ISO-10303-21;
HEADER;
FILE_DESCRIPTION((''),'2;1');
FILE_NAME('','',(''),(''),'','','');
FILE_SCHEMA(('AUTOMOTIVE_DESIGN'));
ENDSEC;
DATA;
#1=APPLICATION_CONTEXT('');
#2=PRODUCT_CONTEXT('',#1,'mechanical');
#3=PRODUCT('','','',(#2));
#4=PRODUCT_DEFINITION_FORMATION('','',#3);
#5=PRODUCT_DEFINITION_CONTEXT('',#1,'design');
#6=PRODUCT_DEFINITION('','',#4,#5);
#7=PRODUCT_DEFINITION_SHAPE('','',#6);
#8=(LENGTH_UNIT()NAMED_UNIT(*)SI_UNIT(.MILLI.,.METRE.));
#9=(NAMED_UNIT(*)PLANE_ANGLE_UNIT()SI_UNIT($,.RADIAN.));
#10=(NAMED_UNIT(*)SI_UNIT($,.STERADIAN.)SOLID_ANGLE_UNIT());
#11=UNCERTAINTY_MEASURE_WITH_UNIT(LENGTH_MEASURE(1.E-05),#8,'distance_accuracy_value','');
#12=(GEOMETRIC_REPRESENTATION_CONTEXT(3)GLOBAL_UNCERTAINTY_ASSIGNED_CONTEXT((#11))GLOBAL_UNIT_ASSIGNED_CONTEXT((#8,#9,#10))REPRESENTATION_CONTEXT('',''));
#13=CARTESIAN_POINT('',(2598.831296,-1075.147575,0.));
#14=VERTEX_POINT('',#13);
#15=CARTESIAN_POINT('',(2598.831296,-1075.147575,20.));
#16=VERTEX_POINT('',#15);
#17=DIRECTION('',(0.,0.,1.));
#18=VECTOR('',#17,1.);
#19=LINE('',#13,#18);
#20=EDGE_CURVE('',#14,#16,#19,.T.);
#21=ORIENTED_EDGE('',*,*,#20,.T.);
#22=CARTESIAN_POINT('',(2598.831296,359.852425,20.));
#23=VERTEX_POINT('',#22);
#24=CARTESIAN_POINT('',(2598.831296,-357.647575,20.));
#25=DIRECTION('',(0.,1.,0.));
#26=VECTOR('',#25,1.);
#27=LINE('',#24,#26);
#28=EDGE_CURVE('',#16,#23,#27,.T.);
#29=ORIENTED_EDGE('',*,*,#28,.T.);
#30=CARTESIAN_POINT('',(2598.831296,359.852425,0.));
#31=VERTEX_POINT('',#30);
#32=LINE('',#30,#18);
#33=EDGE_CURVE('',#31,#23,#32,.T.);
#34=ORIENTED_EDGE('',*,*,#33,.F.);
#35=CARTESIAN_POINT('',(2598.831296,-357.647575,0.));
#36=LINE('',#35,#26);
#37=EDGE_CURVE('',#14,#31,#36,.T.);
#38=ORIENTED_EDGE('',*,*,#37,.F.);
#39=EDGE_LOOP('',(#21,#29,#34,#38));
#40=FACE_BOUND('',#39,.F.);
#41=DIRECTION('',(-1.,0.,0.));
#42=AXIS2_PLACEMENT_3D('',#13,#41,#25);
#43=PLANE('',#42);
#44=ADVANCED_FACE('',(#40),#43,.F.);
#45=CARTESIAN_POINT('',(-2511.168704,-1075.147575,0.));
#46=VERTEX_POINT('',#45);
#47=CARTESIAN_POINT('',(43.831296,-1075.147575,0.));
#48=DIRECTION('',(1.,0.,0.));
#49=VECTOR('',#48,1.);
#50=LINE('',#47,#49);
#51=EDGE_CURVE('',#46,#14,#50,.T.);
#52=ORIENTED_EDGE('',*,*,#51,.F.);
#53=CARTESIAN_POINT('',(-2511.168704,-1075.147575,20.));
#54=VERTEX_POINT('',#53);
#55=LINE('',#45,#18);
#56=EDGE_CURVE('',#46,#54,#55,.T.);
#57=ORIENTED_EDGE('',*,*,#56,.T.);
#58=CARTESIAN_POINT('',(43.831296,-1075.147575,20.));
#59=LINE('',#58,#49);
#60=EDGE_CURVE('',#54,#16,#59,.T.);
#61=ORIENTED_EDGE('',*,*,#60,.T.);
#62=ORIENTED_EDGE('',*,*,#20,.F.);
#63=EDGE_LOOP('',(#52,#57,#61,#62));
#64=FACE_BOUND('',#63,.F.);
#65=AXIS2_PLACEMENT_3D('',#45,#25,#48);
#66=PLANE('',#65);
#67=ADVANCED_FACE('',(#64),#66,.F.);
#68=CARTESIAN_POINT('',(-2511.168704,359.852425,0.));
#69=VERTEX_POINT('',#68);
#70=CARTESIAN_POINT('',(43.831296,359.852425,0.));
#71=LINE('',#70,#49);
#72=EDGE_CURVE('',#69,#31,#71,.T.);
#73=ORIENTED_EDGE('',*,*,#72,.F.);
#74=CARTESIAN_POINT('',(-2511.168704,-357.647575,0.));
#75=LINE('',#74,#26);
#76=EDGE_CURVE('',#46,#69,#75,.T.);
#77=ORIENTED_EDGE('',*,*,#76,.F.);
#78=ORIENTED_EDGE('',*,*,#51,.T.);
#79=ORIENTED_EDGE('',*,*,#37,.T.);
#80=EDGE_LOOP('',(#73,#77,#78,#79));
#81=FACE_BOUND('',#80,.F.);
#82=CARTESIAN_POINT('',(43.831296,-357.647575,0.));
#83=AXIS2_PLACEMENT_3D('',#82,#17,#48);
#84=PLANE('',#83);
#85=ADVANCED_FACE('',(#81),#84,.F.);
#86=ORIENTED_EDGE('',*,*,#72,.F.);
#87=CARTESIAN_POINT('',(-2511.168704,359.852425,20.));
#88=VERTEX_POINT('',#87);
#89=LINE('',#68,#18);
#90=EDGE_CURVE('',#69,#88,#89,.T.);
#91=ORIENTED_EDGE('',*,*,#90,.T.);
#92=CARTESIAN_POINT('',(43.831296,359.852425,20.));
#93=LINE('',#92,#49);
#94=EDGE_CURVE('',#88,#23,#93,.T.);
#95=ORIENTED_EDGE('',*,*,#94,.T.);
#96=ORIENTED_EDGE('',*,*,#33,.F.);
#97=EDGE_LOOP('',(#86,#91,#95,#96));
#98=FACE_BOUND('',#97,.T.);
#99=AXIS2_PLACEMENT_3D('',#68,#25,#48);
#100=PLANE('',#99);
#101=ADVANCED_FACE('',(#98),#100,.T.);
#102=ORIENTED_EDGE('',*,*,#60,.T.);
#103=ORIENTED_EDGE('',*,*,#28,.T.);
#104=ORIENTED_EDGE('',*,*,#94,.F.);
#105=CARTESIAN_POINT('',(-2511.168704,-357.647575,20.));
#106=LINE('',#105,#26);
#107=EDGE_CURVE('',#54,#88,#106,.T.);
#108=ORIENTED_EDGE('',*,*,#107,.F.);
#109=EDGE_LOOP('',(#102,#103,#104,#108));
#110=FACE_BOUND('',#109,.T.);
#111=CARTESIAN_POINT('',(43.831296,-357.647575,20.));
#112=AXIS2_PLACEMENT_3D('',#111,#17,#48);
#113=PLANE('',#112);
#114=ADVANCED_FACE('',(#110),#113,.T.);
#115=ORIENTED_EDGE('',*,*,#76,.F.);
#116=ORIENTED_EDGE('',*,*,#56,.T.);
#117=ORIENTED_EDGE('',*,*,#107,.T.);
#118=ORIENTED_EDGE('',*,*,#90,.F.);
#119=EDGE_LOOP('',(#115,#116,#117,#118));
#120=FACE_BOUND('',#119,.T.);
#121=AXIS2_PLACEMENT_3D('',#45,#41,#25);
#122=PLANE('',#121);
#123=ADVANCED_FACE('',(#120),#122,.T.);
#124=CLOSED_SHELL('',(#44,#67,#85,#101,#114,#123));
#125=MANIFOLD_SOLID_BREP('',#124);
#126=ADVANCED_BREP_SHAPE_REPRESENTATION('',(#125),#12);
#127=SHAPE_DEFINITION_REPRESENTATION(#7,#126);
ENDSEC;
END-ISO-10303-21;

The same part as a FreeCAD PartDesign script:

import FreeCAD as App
import Part
import Sketcher
Q = App.Units.Quantity

doc = App.newDocument("Part")
params = doc.addObject("Spreadsheet::Sheet", "Params")
for row, (alias, value) in enumerate([
    ("sketch1_width", "5110 mm"),
    ("sketch1_height", "1435 mm"),
    ("pad1_length", "20 mm"),
], start=1):
    params.set(f"A{row}", alias)
    params.set(f"B{row}", "=" + value)
    params.setAlias(f"B{row}", alias)

body = doc.addObject("PartDesign::Body", "Body")

# Sketch on XY plane
sketch1 = body.newObject("Sketcher::SketchObject", "Sketch")
sketch1.AttachmentSupport = (doc.getObject("XY_Plane"), [""])
sketch1.MapMode = "FlatFace"
sketch1.addGeometry([
    Part.LineSegment(App.Vector(-2511.168704, 359.852425, 0), App.Vector(-2511.168704, -1075.147575, 0)),
    Part.LineSegment(App.Vector(-2511.168704, -1075.147575, 0), App.Vector(2598.831296, -1075.147575, 0)),
    Part.LineSegment(App.Vector(2598.831296, -1075.147575, 0), App.Vector(2598.831296, 359.852425, 0)),
    Part.LineSegment(App.Vector(2598.831296, 359.852425, 0), App.Vector(-2511.168704, 359.852425, 0)),
], False)
sketch1.addConstraint([
    Sketcher.Constraint("Coincident", 0, 2, 1, 1),
    Sketcher.Constraint("Coincident", 1, 2, 2, 1),
    Sketcher.Constraint("Coincident", 2, 2, 3, 1),
    Sketcher.Constraint("Coincident", 3, 2, 0, 1),
    Sketcher.Constraint("Vertical", 0),
    Sketcher.Constraint("Horizontal", 1),
    Sketcher.Constraint("Vertical", 2),
    Sketcher.Constraint("Horizontal", 3),
    Sketcher.Constraint("DistanceX", 1, 1, 1, 2, Q("5110 mm")),
    Sketcher.Constraint("DistanceY", 0, 2, 0, 1, Q("1435 mm")),
    Sketcher.Constraint("DistanceX", 0, 2, -1, 1, Q("2511.168704 mm")),
    Sketcher.Constraint("DistanceY", 0, 2, -1, 1, Q("1075.147575 mm")),
])
sketch1.setExpression("Constraints[8]", "Params.sketch1_width")
sketch1.setExpression("Constraints[9]", "Params.sketch1_height")
pad1 = body.newObject("PartDesign::Pad", "Pad")
pad1.Profile = sketch1
pad1.setExpression("Length", "Params.pad1_length")

doc.recompute()
